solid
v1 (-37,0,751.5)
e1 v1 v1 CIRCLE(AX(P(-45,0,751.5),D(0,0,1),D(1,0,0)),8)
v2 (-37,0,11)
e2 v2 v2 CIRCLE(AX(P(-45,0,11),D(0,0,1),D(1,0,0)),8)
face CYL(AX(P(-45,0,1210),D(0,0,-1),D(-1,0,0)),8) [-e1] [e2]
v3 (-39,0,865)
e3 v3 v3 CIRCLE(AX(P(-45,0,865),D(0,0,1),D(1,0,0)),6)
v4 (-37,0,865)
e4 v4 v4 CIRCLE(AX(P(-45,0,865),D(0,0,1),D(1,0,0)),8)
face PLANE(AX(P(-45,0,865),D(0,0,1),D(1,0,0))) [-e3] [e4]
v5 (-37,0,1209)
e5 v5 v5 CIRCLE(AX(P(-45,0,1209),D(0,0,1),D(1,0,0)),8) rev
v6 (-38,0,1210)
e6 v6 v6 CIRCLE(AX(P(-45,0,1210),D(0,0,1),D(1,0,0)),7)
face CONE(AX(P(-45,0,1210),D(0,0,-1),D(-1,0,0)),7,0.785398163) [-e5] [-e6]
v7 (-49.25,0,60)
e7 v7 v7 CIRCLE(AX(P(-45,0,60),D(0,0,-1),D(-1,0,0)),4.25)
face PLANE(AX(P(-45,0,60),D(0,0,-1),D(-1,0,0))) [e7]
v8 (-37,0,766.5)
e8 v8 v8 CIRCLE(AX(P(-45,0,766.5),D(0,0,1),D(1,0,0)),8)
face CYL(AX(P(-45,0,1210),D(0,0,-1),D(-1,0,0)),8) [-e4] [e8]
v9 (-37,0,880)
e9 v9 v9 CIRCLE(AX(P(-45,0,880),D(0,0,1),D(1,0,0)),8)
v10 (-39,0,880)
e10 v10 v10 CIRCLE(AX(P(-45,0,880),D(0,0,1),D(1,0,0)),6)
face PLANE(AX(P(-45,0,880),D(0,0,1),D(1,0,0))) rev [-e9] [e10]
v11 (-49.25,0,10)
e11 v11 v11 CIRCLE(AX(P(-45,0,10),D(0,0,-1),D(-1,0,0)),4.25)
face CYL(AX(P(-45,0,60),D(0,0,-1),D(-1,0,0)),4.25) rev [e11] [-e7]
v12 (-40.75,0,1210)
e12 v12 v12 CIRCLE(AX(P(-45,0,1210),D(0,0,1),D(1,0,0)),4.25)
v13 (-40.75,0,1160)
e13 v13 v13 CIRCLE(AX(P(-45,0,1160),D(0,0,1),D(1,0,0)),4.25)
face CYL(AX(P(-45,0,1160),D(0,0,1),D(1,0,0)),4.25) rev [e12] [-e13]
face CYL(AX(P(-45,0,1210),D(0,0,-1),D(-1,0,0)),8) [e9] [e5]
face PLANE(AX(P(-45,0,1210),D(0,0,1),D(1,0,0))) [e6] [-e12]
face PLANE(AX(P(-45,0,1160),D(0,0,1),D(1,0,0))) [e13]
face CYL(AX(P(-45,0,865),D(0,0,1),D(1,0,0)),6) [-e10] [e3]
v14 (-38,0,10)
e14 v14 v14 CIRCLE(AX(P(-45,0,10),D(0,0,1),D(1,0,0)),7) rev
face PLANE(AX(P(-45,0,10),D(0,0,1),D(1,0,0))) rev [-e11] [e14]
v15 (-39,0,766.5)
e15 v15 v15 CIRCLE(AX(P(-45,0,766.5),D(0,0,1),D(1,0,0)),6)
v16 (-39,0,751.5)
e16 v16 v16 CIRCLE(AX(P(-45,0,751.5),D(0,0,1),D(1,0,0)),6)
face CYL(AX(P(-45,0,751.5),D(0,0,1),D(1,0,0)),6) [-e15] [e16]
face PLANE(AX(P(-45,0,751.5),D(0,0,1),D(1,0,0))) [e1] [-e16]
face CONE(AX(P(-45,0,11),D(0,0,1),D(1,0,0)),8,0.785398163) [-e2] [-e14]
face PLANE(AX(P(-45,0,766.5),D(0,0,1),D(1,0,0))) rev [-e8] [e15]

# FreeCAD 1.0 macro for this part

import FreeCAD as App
import Part
import Sketcher
from FreeCAD import Vector
Q = App.Units.Quantity


def edges_at(feature, points):
    """Names of the edges that pass closest to the given points."""
    edges = feature.Shape.Edges
    near = lambda p: min(range(len(edges)), key=lambda i: edges[i].distToShape(Part.Vertex(*p))[0])
    return sorted({f"Edge{near(p) + 1}" for p in points})

doc = App.newDocument("Part")
body = doc.addObject("PartDesign::Body", "Body")

# Sketch on XY plane
sketch1 = body.newObject("Sketcher::SketchObject", "Sketch")
sketch1.AttachmentSupport = (doc.getObject("XY_Plane"), [""])
sketch1.MapMode = "FlatFace"
sketch1.AttachmentOffset = App.Placement(Vector(0, 0, 10), App.Rotation())
sketch1.addGeometry(Part.Circle(Vector(-45, 0, 0), Vector(0, 0, 1), 8), False)
sketch1.addConstraint([
    Sketcher.Constraint("PointOnObject", 0, 3, -1),
    Sketcher.Constraint("Diameter", 0, Q("16 mm")),
    Sketcher.Constraint("DistanceX", 0, 3, -1, 1, Q("45 mm")),
])
pad1 = body.newObject("PartDesign::Pad", "Pad")
pad1.Profile = sketch1
pad1.Length = 1200
doc.recompute()

chamfer = body.newObject("PartDesign::Chamfer", "Chamfer")
chamfer.Base = (pad1, edges_at(pad1, [(-53, 0, 10), (-53, 0, 1210)]))
chamfer.Size = 1

# Sketch on XY plane
sketch2 = body.newObject("Sketcher::SketchObject", "Sketch001")
sketch2.AttachmentSupport = (doc.getObject("XY_Plane"), [""])
sketch2.MapMode = "FlatFace"
sketch2.AttachmentOffset = App.Placement(Vector(0, 0, 1210), App.Rotation())
sketch2.addGeometry(Part.Circle(Vector(-45, 0, 0), Vector(0, 0, 1), 4.25), False)
sketch2.addConstraint([
    Sketcher.Constraint("PointOnObject", 0, 3, -1),
    Sketcher.Constraint("Diameter", 0, Q("8.5 mm")),
    Sketcher.Constraint("DistanceX", 0, 3, -1, 1, Q("45 mm")),
])
pocket1 = body.newObject("PartDesign::Pocket", "Pocket")
pocket1.Profile = sketch2
pocket1.Length = 50

# Sketch on XY plane
sketch3 = body.newObject("Sketcher::SketchObject", "Sketch002")
sketch3.AttachmentSupport = (doc.getObject("XY_Plane"), [""])
sketch3.MapMode = "FlatFace"
sketch3.AttachmentOffset = App.Placement(Vector(0, 0, 60), App.Rotation())
sketch3.addGeometry(Part.Circle(Vector(-45, 0, 0), Vector(0, 0, 1), 4.25), False)
sketch3.addConstraint([
    Sketcher.Constraint("PointOnObject", 0, 3, -1),
    Sketcher.Constraint("Diameter", 0, Q("8.5 mm")),
    Sketcher.Constraint("DistanceX", 0, 3, -1, 1, Q("45 mm")),
])
pocket2 = body.newObject("PartDesign::Pocket", "Pocket001")
pocket2.Profile = sketch3
pocket2.Length = 50

# Sketch on XY plane
sketch4 = body.newObject("Sketcher::SketchObject", "Sketch003")
sketch4.AttachmentSupport = (doc.getObject("XY_Plane"), [""])
sketch4.MapMode = "FlatFace"
sketch4.AttachmentOffset = App.Placement(Vector(0, 0, 751.5), App.Rotation())
sketch4.addGeometry([
    Part.Circle(Vector(-45, 0, 0), Vector(0, 0, 1), 8),
    Part.Circle(Vector(-45, 0, 0), Vector(0, 0, 1), 6),
], False)
sketch4.addConstraint([
    Sketcher.Constraint("Coincident", 1, 3, 0, 3),
    Sketcher.Constraint("PointOnObject", 0, 3, -1),
    Sketcher.Constraint("Diameter", 0, Q("16 mm")),
    Sketcher.Constraint("Diameter", 1, Q("12 mm")),
    Sketcher.Constraint("DistanceX", 0, 3, -1, 1, Q("45 mm")),
])
pocket3 = body.newObject("PartDesign::Pocket", "Pocket002")
pocket3.Profile = sketch4
pocket3.Length = 15
pocket3.Reversed = True

# Sketch on XY plane
sketch5 = body.newObject("Sketcher::SketchObject", "Sketch004")
sketch5.AttachmentSupport = (doc.getObject("XY_Plane"), [""])
sketch5.MapMode = "FlatFace"
sketch5.AttachmentOffset = App.Placement(Vector(0, 0, 865), App.Rotation())
sketch5.addGeometry([
    Part.Circle(Vector(-45, 0, 0), Vector(0, 0, 1), 8),
    Part.Circle(Vector(-45, 0, 0), Vector(0, 0, 1), 6),
], False)
sketch5.addConstraint([
    Sketcher.Constraint("Coincident", 1, 3, 0, 3),
    Sketcher.Constraint("PointOnObject", 0, 3, -1),
    Sketcher.Constraint("Diameter", 0, Q("16 mm")),
    Sketcher.Constraint("Diameter", 1, Q("12 mm")),
    Sketcher.Constraint("DistanceX", 0, 3, -1, 1, Q("45 mm")),
])
pocket4 = body.newObject("PartDesign::Pocket", "Pocket003")
pocket4.Profile = sketch5
pocket4.Length = 15
pocket4.Reversed = True

doc.recompute()
